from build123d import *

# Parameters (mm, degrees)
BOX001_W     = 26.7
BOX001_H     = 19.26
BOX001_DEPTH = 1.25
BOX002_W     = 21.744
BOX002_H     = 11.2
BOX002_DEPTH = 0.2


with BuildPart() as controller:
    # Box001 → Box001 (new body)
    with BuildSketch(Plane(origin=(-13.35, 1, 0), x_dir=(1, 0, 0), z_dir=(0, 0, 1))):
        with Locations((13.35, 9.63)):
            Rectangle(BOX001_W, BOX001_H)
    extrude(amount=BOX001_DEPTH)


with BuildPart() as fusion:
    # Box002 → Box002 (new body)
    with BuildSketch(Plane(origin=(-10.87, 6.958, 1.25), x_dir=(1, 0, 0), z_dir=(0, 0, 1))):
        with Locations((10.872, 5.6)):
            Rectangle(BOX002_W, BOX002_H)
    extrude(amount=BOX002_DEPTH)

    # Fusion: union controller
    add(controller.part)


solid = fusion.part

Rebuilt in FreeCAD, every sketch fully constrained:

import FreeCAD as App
import Part
import Sketcher


def add_polygon(sketch, points):
    """Adds a closed chain of lines whose ends are joined by coincident constraints."""
    first, n = sketch.GeometryCount, len(points)
    for a, b in zip(points, points[1:] + points[:1]):
        sketch.addGeometry(Part.LineSegment(App.Vector(*a, 0), App.Vector(*b, 0)), False)
    for i in range(n):
        sketch.addConstraint(Sketcher.Constraint("Coincident", first + i, 2, first + (i + 1) % n, 1))

doc = App.newDocument("Part")
body = doc.addObject("PartDesign::Body", "Body")

# Sketch on XY plane
sketch1 = body.newObject("Sketcher::SketchObject", "Sketch")
sketch1.AttachmentSupport = (doc.getObject("XY_Plane"), [""])
sketch1.MapMode = "FlatFace"
add_polygon(sketch1, [(-13, 20), (-13, 1), (13, 1), (13, 20)])  # lines 0-3
sketch1.addConstraint(Sketcher.Constraint("Vertical", 0))
sketch1.addConstraint(Sketcher.Constraint("Horizontal", 1))
sketch1.addConstraint(Sketcher.Constraint("Vertical", 2))
sketch1.addConstraint(Sketcher.Constraint("Horizontal", 3))
sketch1.addConstraint(Sketcher.Constraint("DistanceX", 1, 1, 1, 2, 26.7))
sketch1.addConstraint(Sketcher.Constraint("DistanceY", -1, 1, 0, 2, 1.0))
sketch1.addConstraint(Sketcher.Constraint("DistanceY", 0, 2, 0, 1, 19.26))
sketch1.addConstraint(Sketcher.Constraint("DistanceX", 0, 2, -1, 1, 13.35))
pad1 = body.newObject("PartDesign::Pad", "Pad")
pad1.Profile = sketch1
pad1.Length = 1.25
body2 = doc.addObject("PartDesign::Body", "Body001")

# Sketch on XY plane
sketch2 = body2.newObject("Sketcher::SketchObject", "Sketch001")
sketch2.AttachmentSupport = (doc.getObject("XY_Plane001"), [""])
sketch2.MapMode = "FlatFace"
sketch2.AttachmentOffset = App.Placement(App.Vector(0, 0, 1.25), App.Rotation())
add_polygon(sketch2, [(-11, 18), (-11, 7), (11, 7), (11, 18)])  # lines 0-3
sketch2.addConstraint(Sketcher.Constraint("Vertical", 0))
sketch2.addConstraint(Sketcher.Constraint("Horizontal", 1))
sketch2.addConstraint(Sketcher.Constraint("Vertical", 2))
sketch2.addConstraint(Sketcher.Constraint("Horizontal", 3))
sketch2.addConstraint(Sketcher.Constraint("DistanceY", 0, 2, 0, 1, 11.2))
sketch2.addConstraint(Sketcher.Constraint("DistanceX", 1, 1, 1, 2, 21.744))
sketch2.addConstraint(Sketcher.Constraint("DistanceX", 0, 2, -1, 1, 10.87))
sketch2.addConstraint(Sketcher.Constraint("DistanceY", -1, 1, 0, 2, 6.958))
pad2 = body2.newObject("PartDesign::Pad", "Pad001")
pad2.Profile = sketch2
pad2.Length = 0.2
doc.recompute()

boolean = body2.newObject("PartDesign::Boolean", "Boolean")
boolean.Type = "Fuse"
boolean.addObjects([body])

doc.recompute()
